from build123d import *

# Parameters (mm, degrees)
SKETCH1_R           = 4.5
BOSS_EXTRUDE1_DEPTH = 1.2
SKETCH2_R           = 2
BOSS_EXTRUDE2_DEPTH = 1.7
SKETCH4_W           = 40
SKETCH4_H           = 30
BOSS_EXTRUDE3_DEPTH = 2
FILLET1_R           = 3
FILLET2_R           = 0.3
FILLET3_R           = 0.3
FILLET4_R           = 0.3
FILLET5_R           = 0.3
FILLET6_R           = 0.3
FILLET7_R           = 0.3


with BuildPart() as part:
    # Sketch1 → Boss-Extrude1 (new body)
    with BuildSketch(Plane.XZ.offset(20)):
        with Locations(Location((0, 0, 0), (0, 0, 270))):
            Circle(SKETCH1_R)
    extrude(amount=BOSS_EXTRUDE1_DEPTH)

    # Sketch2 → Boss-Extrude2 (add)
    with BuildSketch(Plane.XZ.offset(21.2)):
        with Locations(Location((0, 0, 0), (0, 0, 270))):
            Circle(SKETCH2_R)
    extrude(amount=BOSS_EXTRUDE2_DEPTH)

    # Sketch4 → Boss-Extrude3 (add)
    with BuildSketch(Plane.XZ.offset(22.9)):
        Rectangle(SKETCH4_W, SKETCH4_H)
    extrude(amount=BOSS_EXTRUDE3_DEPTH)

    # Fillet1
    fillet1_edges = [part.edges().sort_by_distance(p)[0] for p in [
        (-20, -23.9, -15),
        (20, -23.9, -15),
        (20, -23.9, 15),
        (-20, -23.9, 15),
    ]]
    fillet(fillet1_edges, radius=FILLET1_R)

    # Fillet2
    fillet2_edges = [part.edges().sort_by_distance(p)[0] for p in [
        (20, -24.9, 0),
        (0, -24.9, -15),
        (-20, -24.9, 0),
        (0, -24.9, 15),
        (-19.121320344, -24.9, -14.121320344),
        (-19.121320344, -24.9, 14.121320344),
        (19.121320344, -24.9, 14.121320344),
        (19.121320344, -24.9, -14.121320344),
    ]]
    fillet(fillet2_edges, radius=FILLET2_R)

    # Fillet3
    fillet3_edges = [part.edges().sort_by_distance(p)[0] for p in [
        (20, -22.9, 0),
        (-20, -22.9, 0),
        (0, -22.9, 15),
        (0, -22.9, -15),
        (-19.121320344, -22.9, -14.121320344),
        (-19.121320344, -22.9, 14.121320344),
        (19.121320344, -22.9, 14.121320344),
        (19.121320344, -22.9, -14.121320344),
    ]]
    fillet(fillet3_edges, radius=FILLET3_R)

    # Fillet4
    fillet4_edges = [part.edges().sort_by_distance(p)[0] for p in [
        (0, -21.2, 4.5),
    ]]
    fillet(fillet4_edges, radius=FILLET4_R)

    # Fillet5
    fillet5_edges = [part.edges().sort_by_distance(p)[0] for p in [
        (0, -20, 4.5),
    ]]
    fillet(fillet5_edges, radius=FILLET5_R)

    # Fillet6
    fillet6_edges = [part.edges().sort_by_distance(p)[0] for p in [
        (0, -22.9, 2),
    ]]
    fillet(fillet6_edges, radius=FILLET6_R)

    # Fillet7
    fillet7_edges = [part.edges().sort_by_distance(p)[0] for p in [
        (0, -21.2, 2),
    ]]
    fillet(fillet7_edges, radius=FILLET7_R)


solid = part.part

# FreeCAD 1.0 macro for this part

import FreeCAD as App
import Part
import Sketcher

V = App.Vector
Q = App.Units.Quantity


def edges_at(feature, points):
    """Names of the edges that pass closest to the given points."""
    edges = feature.Shape.Edges
    near = lambda p: min(range(len(edges)), key=lambda i: edges[i].distToShape(Part.Vertex(*p))[0])
    return sorted({f"Edge{near(p) + 1}" for p in points})


def add_polygon(sketch, points):
    """Adds a closed chain of lines whose ends are joined by coincident constraints."""
    first, n = sketch.GeometryCount, len(points)
    for a, b in zip(points, points[1:] + points[:1]):
        sketch.addGeometry(Part.LineSegment(App.Vector(*a, 0), App.Vector(*b, 0)), False)
    for i in range(n):
        sketch.addConstraint(Sketcher.Constraint("Coincident", first + i, 2, first + (i + 1) % n, 1))

doc = App.newDocument("Part")
body = doc.addObject("PartDesign::Body", "Body")

sketch1 = body.newObject("Sketcher::SketchObject", "Sketch")
sketch1.AttachmentSupport = (doc.getObject("XZ_Plane"), [""])
sketch1.MapMode = "FlatFace"
sketch1.AttachmentOffset = App.Placement(V(0, 0, 20), App.Rotation())
sketch1.addGeometry(Part.Circle(V(0, 0, 0), V(0, 0, 1), 4.5), False)
sketch1.addConstraint(Sketcher.Constraint("Coincident", 0, 3, -1, 1))
sketch1.addConstraint(Sketcher.Constraint("Diameter", 0, Q("9 mm")))
pad1 = body.newObject("PartDesign::Pad", "Pad")
pad1.Profile = sketch1
pad1.Length = 1.2

sketch2 = body.newObject("Sketcher::SketchObject", "Sketch001")
sketch2.AttachmentSupport = (doc.getObject("XZ_Plane"), [""])
sketch2.MapMode = "FlatFace"
sketch2.AttachmentOffset = App.Placement(V(0, 0, 21.2), App.Rotation())
sketch2.addGeometry(Part.Circle(V(0, 0, 0), V(0, 0, 1), 2), False)
sketch2.addConstraint(Sketcher.Constraint("Coincident", 0, 3, -1, 1))
sketch2.addConstraint(Sketcher.Constraint("Diameter", 0, Q("4 mm")))
pad2 = body.newObject("PartDesign::Pad", "Pad001")
pad2.Profile = sketch2
pad2.Length = 1.7

sketch3 = body.newObject("Sketcher::SketchObject", "Sketch002")
sketch3.AttachmentSupport = (doc.getObject("XZ_Plane"), [""])
sketch3.MapMode = "FlatFace"
sketch3.AttachmentOffset = App.Placement(V(0, 0, 22.9), App.Rotation())
add_polygon(sketch3, [(-20, 15), (-20, -15), (20, -15), (20, 15)])
sketch3.addConstraint(Sketcher.Constraint("Vertical", 0))
sketch3.addConstraint(Sketcher.Constraint("Horizontal", 1))
sketch3.addConstraint(Sketcher.Constraint("Vertical", 2))
sketch3.addConstraint(Sketcher.Constraint("Horizontal", 3))
sketch3.addConstraint(Sketcher.Constraint("Symmetric", 0, 2, 2, 2, -1, 1))
sketch3.addConstraint(Sketcher.Constraint("DistanceX", 1, 1, 1, 2, Q("40 mm")))
sketch3.addConstraint(Sketcher.Constraint("DistanceY", 0, 2, 0, 1, Q("30 mm")))
pad3 = body.newObject("PartDesign::Pad", "Pad002")
pad3.Profile = sketch3
pad3.Length = 2
doc.recompute()

fillet = body.newObject("PartDesign::Fillet", "Fillet")
fillet.Base = (pad3, edges_at(pad3, [
    (-20, -23.9, -15),
    (20, -23.9, -15),
    (20, -23.9, 15),
    (-20, -23.9, 15),
]))
fillet.Radius = 3
doc.recompute()

fillet2 = body.newObject("PartDesign::Fillet", "Fillet001")
fillet2.Base = (fillet, edges_at(fillet, [
    (20, -24.9, 0),
    (0, -24.9, -15),
    (-20, -24.9, 0),
    (0, -24.9, 15),
    (-19.121, -24.9, -14.121),
    (-19.121, -24.9, 14.121),
    (19.121, -24.9, 14.121),
    (19.121, -24.9, -14.121),
]))
fillet2.Radius = 0.3
doc.recompute()

fillet3 = body.newObject("PartDesign::Fillet", "Fillet002")
fillet3.Base = (fillet2, edges_at(fillet2, [
    (20, -22.9, 0),
    (-20, -22.9, 0),
    (0, -22.9, 15),
    (0, -22.9, -15),
    (-19.121, -22.9, -14.121),
    (-19.121, -22.9, 14.121),
    (19.121, -22.9, 14.121),
    (19.121, -22.9, -14.121),
]))
fillet3.Radius = 0.3
doc.recompute()

fillet4 = body.newObject("PartDesign::Fillet", "Fillet003")
fillet4.Base = (fillet3, edges_at(fillet3, [(0, -21.2, 4.5)]))
fillet4.Radius = 0.3
doc.recompute()

fillet5 = body.newObject("PartDesign::Fillet", "Fillet004")
fillet5.Base = (fillet4, edges_at(fillet4, [(0, -20, 4.5)]))
fillet5.Radius = 0.3
doc.recompute()

fillet6 = body.newObject("PartDesign::Fillet", "Fillet005")
fillet6.Base = (fillet5, edges_at(fillet5, [(0, -22.9, 2)]))
fillet6.Radius = 0.3
doc.recompute()

fillet7 = body.newObject("PartDesign::Fillet", "Fillet006")
fillet7.Base = (fillet6, edges_at(fillet6, [(0, -21.2, 2)]))
fillet7.Radius = 0.3

doc.recompute()
